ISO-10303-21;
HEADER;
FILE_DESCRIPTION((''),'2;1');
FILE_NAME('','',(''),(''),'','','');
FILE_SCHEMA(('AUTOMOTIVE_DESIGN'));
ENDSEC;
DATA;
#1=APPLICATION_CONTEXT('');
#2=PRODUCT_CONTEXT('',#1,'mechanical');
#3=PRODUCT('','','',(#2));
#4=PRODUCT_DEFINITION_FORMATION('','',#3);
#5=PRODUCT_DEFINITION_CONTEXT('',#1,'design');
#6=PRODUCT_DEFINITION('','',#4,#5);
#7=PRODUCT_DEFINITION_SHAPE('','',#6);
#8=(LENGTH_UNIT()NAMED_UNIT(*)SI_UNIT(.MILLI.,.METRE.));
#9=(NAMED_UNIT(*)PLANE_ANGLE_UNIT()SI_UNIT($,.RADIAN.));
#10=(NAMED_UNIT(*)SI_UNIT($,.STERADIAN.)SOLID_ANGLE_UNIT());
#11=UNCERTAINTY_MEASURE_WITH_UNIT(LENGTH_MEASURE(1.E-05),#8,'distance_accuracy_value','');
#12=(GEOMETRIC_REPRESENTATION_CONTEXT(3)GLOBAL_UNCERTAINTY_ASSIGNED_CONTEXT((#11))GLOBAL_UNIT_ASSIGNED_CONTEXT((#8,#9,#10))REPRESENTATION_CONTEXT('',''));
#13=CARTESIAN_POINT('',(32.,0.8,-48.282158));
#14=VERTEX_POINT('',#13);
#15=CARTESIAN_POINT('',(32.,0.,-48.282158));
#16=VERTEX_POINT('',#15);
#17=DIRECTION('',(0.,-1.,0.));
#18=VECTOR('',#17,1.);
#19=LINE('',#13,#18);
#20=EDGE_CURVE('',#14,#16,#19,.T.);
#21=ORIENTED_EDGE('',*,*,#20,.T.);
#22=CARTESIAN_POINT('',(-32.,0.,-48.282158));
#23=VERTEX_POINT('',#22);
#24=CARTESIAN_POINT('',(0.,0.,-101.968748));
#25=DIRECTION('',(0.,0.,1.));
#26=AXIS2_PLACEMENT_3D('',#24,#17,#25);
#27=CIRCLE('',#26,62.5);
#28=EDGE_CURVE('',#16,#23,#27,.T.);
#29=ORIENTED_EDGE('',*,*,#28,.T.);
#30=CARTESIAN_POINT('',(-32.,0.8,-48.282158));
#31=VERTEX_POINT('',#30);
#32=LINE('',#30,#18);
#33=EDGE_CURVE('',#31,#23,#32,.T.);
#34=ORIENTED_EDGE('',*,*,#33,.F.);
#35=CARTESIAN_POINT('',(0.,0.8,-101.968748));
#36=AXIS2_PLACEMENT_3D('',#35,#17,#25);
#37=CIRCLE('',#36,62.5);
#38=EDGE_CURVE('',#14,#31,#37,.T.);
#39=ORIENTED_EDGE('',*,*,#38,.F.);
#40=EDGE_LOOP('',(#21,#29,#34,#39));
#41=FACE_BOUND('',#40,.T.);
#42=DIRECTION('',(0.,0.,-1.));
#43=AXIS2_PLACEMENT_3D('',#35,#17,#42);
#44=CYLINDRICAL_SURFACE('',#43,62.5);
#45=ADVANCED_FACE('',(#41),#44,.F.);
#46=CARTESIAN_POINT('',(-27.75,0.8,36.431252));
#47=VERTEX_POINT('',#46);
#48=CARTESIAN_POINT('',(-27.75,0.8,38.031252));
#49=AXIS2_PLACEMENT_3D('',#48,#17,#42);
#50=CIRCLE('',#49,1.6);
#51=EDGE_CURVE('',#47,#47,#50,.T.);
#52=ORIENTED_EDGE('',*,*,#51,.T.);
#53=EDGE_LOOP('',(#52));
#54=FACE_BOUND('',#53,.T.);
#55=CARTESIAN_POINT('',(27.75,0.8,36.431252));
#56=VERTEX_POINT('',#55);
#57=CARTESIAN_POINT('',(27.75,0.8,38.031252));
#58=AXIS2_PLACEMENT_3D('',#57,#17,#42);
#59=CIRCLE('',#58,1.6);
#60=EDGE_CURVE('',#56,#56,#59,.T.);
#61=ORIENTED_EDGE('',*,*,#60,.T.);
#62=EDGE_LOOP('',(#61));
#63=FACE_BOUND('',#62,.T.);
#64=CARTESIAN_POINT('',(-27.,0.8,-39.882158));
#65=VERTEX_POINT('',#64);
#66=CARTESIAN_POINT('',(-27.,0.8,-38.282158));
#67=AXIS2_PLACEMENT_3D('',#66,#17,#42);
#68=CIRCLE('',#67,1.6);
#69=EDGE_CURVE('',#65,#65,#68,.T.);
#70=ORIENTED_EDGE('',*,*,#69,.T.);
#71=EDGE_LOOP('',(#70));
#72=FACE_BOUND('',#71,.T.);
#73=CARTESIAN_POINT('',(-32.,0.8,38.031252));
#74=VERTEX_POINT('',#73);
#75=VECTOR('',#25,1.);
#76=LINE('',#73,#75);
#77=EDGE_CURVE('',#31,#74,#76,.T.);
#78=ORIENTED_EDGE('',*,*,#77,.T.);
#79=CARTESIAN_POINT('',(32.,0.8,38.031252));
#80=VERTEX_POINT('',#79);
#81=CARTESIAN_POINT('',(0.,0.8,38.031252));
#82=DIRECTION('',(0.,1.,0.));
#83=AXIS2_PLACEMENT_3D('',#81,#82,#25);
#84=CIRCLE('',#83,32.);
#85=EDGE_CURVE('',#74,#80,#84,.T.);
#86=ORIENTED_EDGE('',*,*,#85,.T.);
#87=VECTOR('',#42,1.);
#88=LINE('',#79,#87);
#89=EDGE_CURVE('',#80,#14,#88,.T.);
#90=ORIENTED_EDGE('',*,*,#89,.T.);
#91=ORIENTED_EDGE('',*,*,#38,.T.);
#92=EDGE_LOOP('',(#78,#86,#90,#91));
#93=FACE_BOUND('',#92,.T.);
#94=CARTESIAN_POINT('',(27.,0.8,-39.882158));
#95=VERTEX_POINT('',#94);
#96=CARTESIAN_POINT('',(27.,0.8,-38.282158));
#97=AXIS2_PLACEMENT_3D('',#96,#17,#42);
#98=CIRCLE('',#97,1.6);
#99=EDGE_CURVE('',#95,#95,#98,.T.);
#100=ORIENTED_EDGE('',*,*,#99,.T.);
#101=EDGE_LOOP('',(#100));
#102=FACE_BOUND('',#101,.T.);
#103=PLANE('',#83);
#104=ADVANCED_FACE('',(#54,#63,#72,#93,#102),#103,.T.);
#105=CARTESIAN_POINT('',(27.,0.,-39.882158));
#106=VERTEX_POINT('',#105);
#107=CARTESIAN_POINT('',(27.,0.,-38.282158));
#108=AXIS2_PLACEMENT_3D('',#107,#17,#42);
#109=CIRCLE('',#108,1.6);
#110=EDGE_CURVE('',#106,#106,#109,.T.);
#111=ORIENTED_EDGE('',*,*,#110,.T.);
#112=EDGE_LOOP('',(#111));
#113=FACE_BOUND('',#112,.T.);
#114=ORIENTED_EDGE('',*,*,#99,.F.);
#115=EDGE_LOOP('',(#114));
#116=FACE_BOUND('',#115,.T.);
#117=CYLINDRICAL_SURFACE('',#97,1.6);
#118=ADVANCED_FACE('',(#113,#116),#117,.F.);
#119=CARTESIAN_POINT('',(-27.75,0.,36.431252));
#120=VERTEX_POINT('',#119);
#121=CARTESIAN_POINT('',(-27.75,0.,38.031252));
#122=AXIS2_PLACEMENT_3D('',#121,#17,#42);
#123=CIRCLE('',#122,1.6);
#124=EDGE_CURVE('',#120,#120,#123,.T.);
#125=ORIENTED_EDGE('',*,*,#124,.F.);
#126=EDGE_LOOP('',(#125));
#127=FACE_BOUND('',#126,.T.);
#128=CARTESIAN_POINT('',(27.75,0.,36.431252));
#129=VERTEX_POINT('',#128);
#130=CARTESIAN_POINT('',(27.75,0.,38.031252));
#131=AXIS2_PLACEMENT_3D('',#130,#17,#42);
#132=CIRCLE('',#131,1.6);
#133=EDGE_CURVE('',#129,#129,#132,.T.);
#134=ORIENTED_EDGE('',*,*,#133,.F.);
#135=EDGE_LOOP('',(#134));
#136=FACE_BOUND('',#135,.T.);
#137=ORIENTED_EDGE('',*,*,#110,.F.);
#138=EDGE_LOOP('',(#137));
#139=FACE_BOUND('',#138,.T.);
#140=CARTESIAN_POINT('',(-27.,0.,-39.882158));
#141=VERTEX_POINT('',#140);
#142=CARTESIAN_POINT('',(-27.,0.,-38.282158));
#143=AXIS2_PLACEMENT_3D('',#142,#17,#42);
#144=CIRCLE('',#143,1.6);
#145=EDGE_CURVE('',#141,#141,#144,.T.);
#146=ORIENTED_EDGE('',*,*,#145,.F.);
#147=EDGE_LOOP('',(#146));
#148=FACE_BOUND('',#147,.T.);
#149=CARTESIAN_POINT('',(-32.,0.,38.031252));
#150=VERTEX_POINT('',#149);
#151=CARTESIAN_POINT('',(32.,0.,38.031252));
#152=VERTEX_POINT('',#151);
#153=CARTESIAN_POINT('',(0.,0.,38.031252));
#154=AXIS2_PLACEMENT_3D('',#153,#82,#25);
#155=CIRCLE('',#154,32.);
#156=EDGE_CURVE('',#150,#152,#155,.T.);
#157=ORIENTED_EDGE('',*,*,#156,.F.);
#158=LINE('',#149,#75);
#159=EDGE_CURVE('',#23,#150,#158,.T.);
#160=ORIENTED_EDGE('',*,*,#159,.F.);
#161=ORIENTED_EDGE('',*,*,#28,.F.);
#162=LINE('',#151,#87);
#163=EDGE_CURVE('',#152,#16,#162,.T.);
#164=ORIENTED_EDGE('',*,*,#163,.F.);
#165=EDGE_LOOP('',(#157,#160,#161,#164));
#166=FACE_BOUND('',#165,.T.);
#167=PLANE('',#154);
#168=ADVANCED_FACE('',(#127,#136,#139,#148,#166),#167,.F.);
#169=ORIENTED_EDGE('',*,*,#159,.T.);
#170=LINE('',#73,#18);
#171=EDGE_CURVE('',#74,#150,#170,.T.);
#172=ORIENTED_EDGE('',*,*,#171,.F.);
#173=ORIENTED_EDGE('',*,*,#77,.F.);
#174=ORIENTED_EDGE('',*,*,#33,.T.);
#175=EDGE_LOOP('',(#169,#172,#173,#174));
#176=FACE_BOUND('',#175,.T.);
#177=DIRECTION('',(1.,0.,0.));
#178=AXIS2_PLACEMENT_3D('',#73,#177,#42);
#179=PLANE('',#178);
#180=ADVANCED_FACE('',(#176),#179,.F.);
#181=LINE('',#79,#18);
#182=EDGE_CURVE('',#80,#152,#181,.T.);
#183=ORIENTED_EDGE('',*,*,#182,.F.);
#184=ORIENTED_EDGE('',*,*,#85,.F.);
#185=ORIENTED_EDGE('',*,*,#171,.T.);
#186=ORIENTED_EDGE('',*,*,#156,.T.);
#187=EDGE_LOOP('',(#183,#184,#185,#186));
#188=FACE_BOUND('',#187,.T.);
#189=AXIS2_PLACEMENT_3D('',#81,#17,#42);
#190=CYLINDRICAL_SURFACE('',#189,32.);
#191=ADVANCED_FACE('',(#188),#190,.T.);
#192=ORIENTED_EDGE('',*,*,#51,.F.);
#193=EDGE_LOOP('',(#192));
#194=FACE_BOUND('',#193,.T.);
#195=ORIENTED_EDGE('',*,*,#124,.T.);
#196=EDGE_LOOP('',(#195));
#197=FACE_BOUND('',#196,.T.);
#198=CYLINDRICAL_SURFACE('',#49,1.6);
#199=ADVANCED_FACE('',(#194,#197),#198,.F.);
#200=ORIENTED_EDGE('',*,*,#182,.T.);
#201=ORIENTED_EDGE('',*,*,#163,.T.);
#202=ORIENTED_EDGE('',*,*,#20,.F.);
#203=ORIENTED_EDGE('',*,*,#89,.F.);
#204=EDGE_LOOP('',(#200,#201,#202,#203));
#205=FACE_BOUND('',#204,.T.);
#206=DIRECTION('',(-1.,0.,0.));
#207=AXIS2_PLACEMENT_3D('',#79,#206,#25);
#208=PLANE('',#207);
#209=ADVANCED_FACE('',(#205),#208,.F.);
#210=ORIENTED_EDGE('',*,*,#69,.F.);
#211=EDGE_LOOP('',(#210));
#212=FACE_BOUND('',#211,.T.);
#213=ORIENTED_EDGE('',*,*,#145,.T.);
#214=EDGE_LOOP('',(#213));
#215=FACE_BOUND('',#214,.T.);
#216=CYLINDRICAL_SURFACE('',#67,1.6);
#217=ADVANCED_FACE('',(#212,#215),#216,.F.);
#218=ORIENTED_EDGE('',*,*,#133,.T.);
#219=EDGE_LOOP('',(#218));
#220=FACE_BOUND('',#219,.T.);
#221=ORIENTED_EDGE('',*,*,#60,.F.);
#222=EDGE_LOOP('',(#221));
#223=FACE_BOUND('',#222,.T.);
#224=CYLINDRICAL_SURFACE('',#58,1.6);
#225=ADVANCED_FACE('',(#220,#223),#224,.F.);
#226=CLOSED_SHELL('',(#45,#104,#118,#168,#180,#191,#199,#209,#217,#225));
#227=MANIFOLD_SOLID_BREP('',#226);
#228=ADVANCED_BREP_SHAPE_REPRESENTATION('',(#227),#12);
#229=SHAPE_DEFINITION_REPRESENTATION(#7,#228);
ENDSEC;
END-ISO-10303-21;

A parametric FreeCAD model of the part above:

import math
import FreeCAD as App
import Part
import Sketcher

doc = App.newDocument("Part")
body = doc.addObject("PartDesign::Body", "Body")

# Sketch on XZ plane
sketch1 = body.newObject("Sketcher::SketchObject", "Sketch")
sketch1.AttachmentSupport = (doc.getObject("XZ_Plane"), [""])
sketch1.MapMode = "FlatFace"
sketch1.addGeometry([
    Part.LineSegment(App.Vector(-32, -48.282158, 0), App.Vector(-32, 38.031252, 0)),
    Part.ArcOfCircle(Part.Circle(App.Vector(0, 38.031252, 0), App.Vector(0, 0, 1), 32), math.radians(0), math.radians(180)),
    Part.LineSegment(App.Vector(32, 38.031252, 0), App.Vector(32, -48.282158, 0)),
    Part.ArcOfCircle(Part.Circle(App.Vector(0, -101.968748, 0), App.Vector(0, 0, 1), 62.5), math.radians(59.202859), math.radians(120.797141)),
], False)
sketch1.addConstraint([
    Sketcher.Constraint("Tangent", 0, 2, 1, 2),
    Sketcher.Constraint("Tangent", 1, 1, 2, 1),
    Sketcher.Constraint("Coincident", 2, 2, 3, 1),
    Sketcher.Constraint("Coincident", 3, 2, 0, 1),
    Sketcher.Constraint("Vertical", 0),
    Sketcher.Constraint("Vertical", 2),
    Sketcher.Constraint("Symmetric", 2, 2, 3, 2, -2),
    Sketcher.Constraint("Radius", 1, 32.0),
    Sketcher.Constraint("Radius", 3, 62.5),
    Sketcher.Constraint("DistanceY", 3, 3, 1, 3, 140.0),
    Sketcher.Constraint("DistanceY", -1, 1, 1, 3, 38.031252),
])
pad1 = body.newObject("PartDesign::Pad", "Pad")
pad1.Profile = sketch1
pad1.Length = 0.8
pad1.Reversed = True

# Sketch on XZ plane
sketch2 = body.newObject("Sketcher::SketchObject", "Sketch001")
sketch2.AttachmentSupport = (doc.getObject("XZ_Plane"), [""])
sketch2.MapMode = "FlatFace"
sketch2.addGeometry([
    Part.Circle(App.Vector(27.75, 38.031252, 0), App.Vector(0, 0, 1), 1.6),
    Part.Circle(App.Vector(-27.75, 38.031252, 0), App.Vector(0, 0, 1), 1.6),
    Part.Circle(App.Vector(27, -38.282158, 0), App.Vector(0, 0, 1), 1.6),
    Part.Circle(App.Vector(-27, -38.282158, 0), App.Vector(0, 0, 1), 1.6),
], False)
sketch2.addConstraint([
    Sketcher.Constraint("Equal", 0, 1),
    Sketcher.Constraint("Equal", 1, 2),
    Sketcher.Constraint("Equal", 2, 3),
    Sketcher.Constraint("Symmetric", 0, 3, 1, 3, -2),
    Sketcher.Constraint("Symmetric", 2, 3, 3, 3, -2),
    Sketcher.Constraint("Diameter", 0, 3.2),
    Sketcher.Constraint("DistanceX", -1, 1, 2, 3, 27.0),
    Sketcher.Constraint("DistanceX", 1, 3, 0, 3, 55.5),
    Sketcher.Constraint("DistanceY", -1, 1, 0, 3, 38.031252),
    Sketcher.Constraint("DistanceY", 2, 3, 0, 3, 76.313409),
])
pocket1 = body.newObject("PartDesign::Pocket", "Pocket")
pocket1.Profile = sketch2
pocket1.Type = "ThroughAll"

doc.recompute()
